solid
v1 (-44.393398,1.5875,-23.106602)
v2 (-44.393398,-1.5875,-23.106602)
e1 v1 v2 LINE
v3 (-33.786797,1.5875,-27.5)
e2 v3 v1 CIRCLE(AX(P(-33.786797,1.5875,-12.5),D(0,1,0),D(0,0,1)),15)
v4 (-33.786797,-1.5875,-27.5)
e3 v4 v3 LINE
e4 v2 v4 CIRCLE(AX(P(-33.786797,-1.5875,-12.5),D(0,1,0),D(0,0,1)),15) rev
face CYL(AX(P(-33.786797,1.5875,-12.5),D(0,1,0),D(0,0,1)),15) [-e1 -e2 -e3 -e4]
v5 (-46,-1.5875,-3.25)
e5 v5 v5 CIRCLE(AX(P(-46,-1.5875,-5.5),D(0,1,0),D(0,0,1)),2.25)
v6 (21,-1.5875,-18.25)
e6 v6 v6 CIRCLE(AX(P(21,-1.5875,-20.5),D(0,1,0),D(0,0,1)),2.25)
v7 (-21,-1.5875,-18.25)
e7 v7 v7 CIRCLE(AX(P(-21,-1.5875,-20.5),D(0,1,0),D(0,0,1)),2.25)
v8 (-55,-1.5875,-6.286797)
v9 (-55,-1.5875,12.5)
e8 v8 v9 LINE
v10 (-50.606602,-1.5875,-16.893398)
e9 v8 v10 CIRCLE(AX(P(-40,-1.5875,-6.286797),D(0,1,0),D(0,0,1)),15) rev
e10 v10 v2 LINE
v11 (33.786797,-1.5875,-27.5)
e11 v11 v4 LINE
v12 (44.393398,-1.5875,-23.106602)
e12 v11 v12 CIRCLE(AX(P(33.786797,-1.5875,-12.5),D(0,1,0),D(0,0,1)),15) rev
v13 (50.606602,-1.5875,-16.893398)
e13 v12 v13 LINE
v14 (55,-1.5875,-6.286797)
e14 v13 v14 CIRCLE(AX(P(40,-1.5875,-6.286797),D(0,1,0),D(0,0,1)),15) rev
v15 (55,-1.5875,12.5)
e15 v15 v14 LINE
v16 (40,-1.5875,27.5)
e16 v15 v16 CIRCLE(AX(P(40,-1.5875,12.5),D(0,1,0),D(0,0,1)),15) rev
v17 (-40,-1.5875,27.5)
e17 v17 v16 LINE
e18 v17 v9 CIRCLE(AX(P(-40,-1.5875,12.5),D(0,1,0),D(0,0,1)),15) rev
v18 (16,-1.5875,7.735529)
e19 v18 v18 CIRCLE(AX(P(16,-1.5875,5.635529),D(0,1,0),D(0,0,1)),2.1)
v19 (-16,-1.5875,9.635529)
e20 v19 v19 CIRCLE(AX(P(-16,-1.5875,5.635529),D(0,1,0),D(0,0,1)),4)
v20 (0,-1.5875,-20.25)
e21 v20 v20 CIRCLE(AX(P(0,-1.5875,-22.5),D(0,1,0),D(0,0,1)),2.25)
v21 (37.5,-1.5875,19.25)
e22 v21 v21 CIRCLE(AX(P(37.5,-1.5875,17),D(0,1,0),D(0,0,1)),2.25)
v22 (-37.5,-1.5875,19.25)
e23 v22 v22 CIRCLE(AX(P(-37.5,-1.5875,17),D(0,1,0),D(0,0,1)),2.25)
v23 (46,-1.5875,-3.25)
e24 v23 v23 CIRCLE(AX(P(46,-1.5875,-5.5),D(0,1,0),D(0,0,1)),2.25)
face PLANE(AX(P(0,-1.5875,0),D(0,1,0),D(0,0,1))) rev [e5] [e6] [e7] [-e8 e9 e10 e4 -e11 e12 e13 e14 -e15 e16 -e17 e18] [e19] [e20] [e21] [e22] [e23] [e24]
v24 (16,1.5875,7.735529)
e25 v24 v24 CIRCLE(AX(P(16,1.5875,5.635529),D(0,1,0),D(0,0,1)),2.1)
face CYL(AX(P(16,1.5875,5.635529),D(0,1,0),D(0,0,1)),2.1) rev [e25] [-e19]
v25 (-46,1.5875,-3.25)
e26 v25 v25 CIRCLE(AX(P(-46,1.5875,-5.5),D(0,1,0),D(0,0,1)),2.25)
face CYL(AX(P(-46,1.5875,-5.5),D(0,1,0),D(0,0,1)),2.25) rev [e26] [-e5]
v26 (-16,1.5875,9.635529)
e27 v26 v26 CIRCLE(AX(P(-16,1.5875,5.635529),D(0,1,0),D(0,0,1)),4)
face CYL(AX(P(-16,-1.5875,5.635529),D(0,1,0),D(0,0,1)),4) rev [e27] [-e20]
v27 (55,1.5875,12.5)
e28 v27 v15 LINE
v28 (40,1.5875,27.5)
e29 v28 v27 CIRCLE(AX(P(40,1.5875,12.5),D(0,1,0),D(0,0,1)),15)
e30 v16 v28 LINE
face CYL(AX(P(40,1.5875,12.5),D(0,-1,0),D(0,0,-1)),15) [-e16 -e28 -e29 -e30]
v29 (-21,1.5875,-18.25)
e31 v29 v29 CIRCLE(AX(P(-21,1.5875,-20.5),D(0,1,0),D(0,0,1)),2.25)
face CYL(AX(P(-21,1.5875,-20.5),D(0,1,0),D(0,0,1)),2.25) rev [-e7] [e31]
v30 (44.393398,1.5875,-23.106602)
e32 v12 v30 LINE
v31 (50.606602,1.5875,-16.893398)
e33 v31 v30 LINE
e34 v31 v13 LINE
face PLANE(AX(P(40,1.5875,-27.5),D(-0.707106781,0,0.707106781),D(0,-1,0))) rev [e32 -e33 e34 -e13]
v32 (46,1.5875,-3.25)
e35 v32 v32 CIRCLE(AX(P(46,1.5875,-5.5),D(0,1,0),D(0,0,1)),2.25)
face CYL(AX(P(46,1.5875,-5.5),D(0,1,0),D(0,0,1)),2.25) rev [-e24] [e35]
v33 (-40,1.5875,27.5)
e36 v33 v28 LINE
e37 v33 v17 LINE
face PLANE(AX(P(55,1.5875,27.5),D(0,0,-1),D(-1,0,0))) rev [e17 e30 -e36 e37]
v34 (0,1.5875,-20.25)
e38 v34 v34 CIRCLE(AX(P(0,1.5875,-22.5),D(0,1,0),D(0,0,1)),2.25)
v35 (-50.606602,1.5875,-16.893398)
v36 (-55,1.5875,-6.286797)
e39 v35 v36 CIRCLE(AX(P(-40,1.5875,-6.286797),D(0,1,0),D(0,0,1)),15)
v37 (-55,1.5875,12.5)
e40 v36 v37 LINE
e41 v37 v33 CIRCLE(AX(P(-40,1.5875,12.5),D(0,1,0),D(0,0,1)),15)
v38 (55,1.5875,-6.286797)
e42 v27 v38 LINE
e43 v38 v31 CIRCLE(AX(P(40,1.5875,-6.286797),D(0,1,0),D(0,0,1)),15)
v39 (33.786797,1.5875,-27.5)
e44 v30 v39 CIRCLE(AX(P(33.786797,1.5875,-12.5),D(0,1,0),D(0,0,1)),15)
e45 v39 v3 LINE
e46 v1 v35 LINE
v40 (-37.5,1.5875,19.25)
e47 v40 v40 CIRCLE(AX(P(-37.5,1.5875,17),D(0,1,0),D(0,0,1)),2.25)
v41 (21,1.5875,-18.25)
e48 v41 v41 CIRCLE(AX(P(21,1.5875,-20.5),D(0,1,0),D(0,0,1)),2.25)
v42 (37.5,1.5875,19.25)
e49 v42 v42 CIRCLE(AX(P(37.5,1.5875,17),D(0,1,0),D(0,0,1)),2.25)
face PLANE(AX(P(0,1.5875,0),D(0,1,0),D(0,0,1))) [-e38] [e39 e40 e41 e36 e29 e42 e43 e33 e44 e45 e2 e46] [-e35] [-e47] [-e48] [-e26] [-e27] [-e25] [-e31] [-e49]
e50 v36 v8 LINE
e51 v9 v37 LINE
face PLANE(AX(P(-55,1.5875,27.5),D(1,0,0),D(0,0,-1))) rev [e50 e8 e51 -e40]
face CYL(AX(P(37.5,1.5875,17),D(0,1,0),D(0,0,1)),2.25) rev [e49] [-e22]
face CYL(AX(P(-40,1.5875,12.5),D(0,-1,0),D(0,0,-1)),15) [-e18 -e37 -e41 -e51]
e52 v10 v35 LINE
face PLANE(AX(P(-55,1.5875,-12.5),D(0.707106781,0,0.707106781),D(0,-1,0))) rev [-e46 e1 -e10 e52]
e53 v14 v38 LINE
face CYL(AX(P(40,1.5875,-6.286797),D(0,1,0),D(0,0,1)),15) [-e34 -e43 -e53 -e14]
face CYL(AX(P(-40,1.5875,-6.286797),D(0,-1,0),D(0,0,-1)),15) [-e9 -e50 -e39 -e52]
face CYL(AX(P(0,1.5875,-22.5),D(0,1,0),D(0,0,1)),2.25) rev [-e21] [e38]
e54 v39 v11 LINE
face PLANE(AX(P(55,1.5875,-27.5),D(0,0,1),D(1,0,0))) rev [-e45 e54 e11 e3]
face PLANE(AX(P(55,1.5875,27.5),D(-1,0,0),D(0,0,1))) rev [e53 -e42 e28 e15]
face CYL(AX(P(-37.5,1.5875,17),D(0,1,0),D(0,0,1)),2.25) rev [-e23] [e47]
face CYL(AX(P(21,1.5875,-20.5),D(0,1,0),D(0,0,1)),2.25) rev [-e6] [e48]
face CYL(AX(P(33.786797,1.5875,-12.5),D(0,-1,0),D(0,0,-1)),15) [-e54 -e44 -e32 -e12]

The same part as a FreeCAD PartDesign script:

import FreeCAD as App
import Part
import Sketcher

V = App.Vector
Q = App.Units.Quantity


def edges_at(feature, points):
    """Names of the edges that pass closest to the given points."""
    edges = feature.Shape.Edges
    near = lambda p: min(range(len(edges)), key=lambda i: edges[i].distToShape(Part.Vertex(*p))[0])
    return sorted({f"Edge{near(p) + 1}" for p in points})


def add_polygon(sketch, points):
    """Adds a closed chain of lines whose ends are joined by coincident constraints."""
    first, n = sketch.GeometryCount, len(points)
    for a, b in zip(points, points[1:] + points[:1]):
        sketch.addGeometry(Part.LineSegment(App.Vector(*a, 0), App.Vector(*b, 0)), False)
    for i in range(n):
        sketch.addConstraint(Sketcher.Constraint("Coincident", first + i, 2, first + (i + 1) % n, 1))

doc = App.newDocument("Part")
body = doc.addObject("PartDesign::Body", "Body")

sketch1 = body.newObject("Sketcher::SketchObject", "Sketch")
sketch1.AttachmentSupport = (doc.getObject("XZ_Plane"), [""])
sketch1.MapMode = "FlatFace"
add_polygon(sketch1, [(-55, -27.5), (-55, 27.5), (55, 27.5), (55, -27.5)])
sketch1.addConstraint(Sketcher.Constraint("Vertical", 0))
sketch1.addConstraint(Sketcher.Constraint("Horizontal", 1))
sketch1.addConstraint(Sketcher.Constraint("Vertical", 2))
sketch1.addConstraint(Sketcher.Constraint("Horizontal", 3))
sketch1.addConstraint(Sketcher.Constraint("Symmetric", 0, 2, 2, 2, -1, 1))
sketch1.addConstraint(Sketcher.Constraint("DistanceX", 1, 1, 1, 2, Q("110 mm")))
sketch1.addConstraint(Sketcher.Constraint("DistanceY", 0, 1, 0, 2, Q("55 mm")))
pad1 = body.newObject("PartDesign::Pad", "Pad")
pad1.Profile = sketch1
pad1.Length = 3.175
pad1.Midplane = True

sketch2 = body.newObject("Sketcher::SketchObject", "Sketch001")
sketch2.AttachmentSupport = (doc.getObject("XZ_Plane"), [""])
sketch2.MapMode = "FlatFace"
sketch2.AttachmentOffset = App.Placement(V(0, 0, -1.5875), App.Rotation())
sketch2.addGeometry(Part.Circle(V(-37.5, 17, 0), V(0, 0, 1), 2.25), False)
sketch2.addGeometry(Part.Circle(V(37.5, 17, 0), V(0, 0, 1), 2.25), False)
sketch2.addConstraint(Sketcher.Constraint("Equal", 0, 1))
sketch2.addConstraint(Sketcher.Constraint("Symmetric", 0, 3, 1, 3, -2))
sketch2.addConstraint(Sketcher.Constraint("Diameter", 0, Q("4.5 mm")))
sketch2.addConstraint(Sketcher.Constraint("DistanceY", -1, 1, 0, 3, Q("17 mm")))
sketch2.addConstraint(Sketcher.Constraint("DistanceX", 0, 3, 1, 3, Q("75 mm")))
doc.recompute()
hole = body.newObject("PartDesign::Hole", "Hole")
hole.Profile = sketch2
hole.ThreadType = "None"
hole.Diameter = 4.5
hole.DepthType = "ThroughAll"
hole.Reversed = True

sketch3 = body.newObject("Sketcher::SketchObject", "Sketch002")
sketch3.AttachmentSupport = (doc.getObject("XZ_Plane"), [""])
sketch3.MapMode = "FlatFace"
sketch3.AttachmentOffset = App.Placement(V(0, 0, -1.5875), App.Rotation())
sketch3.addGeometry(Part.Circle(V(0, -22.5, 0), V(0, 0, 1), 2.25), False)
sketch3.addConstraint(Sketcher.Constraint("PointOnObject", 0, 3, -2))
sketch3.addConstraint(Sketcher.Constraint("Diameter", 0, Q("4.5 mm")))
sketch3.addConstraint(Sketcher.Constraint("DistanceY", 0, 3, -1, 1, Q("22.5 mm")))
doc.recompute()
hole2 = body.newObject("PartDesign::Hole", "Hole001")
hole2.Profile = sketch3
hole2.ThreadType = "None"
hole2.Diameter = 4.5
hole2.DepthType = "Dimension"
hole2.Depth = 10.1
hole2.DrillPoint = "Angled"
hole2.DrillPointAngle = 118
hole2.Reversed = True

sketch4 = body.newObject("Sketcher::SketchObject", "Sketch003")
sketch4.AttachmentSupport = (doc.getObject("XZ_Plane"), [""])
sketch4.MapMode = "FlatFace"
sketch4.AttachmentOffset = App.Placement(V(0, 0, -1.5875), App.Rotation())
sketch4.addGeometry(Part.Circle(V(-46, -5.5, 0), V(0, 0, 1), 2.25), False)
sketch4.addGeometry(Part.Circle(V(46, -5.5, 0), V(0, 0, 1), 2.25), False)
sketch4.addGeometry(Part.Circle(V(21, -20.5, 0), V(0, 0, 1), 2.25), False)
sketch4.addGeometry(Part.Circle(V(-21, -20.5, 0), V(0, 0, 1), 2.25), False)
sketch4.addConstraint(Sketcher.Constraint("Equal", 0, 1))
sketch4.addConstraint(Sketcher.Constraint("Equal", 1, 2))
sketch4.addConstraint(Sketcher.Constraint("Equal", 2, 3))
sketch4.addConstraint(Sketcher.Constraint("Symmetric", 0, 3, 1, 3, -2))
sketch4.addConstraint(Sketcher.Constraint("Symmetric", 2, 3, 3, 3, -2))
sketch4.addConstraint(Sketcher.Constraint("Diameter", 0, Q("4.5 mm")))
sketch4.addConstraint(Sketcher.Constraint("DistanceX", 0, 3, -1, 1, Q("46 mm")))
sketch4.addConstraint(Sketcher.Constraint("DistanceX", -1, 1, 2, 3, Q("21 mm")))
sketch4.addConstraint(Sketcher.Constraint("DistanceY", 2, 3, 1, 3, Q("15 mm")))
sketch4.addConstraint(Sketcher.Constraint("DistanceY", 0, 3, -1, 1, Q("5.5 mm")))
doc.recompute()
hole3 = body.newObject("PartDesign::Hole", "Hole002")
hole3.Profile = sketch4
hole3.ThreadType = "None"
hole3.Diameter = 4.5
hole3.DepthType = "ThroughAll"
hole3.Reversed = True
doc.recompute()

chamfer = body.newObject("PartDesign::Chamfer", "Chamfer")
chamfer.Base = (hole3, edges_at(hole3, [(-55, 0, -27.5), (55, 0, -27.5)]))
chamfer.Size = 15
doc.recompute()

fillet = body.newObject("PartDesign::Fillet", "Fillet")
fillet.Base = (chamfer, edges_at(chamfer, [
    (-55, 0, -12.5),
    (40, 0, -27.5),
    (-40, 0, -27.5),
    (55, 0, -12.5),
    (55, 0, 27.5),
    (-55, 0, 27.5),
]))
fillet.Radius = 15

sketch5 = body.newObject("Sketcher::SketchObject", "Sketch004")
sketch5.AttachmentSupport = (doc.getObject("XZ_Plane"), [""])
sketch5.MapMode = "FlatFace"
sketch5.AttachmentOffset = App.Placement(V(0, 0, -1.5875), App.Rotation())
sketch5.addGeometry(Part.Circle(V(-16, 5.635529, 0), V(0, 0, 1), 4), False)
sketch5.addConstraint(Sketcher.Constraint("Diameter", 0, Q("8 mm")))
sketch5.addConstraint(Sketcher.Constraint("DistanceX", 0, 3, -1, 1, Q("16 mm")))
sketch5.addConstraint(Sketcher.Constraint("DistanceY", -1, 1, 0, 3, Q("5.635529 mm")))
pocket1 = body.newObject("PartDesign::Pocket", "Pocket")
pocket1.Profile = sketch5
pocket1.Type = "ThroughAll"
pocket1.Reversed = True

sketch6 = body.newObject("Sketcher::SketchObject", "Sketch005")
sketch6.AttachmentSupport = (doc.getObject("XZ_Plane"), [""])
sketch6.MapMode = "FlatFace"
sketch6.AttachmentOffset = App.Placement(V(0, 0, -1.5875), App.Rotation())
sketch6.addGeometry(Part.Circle(V(16, 5.635529, 0), V(0, 0, 1), 2.1), False)
sketch6.addConstraint(Sketcher.Constraint("Diameter", 0, Q("4.2 mm")))
sketch6.addConstraint(Sketcher.Constraint("DistanceX", -1, 1, 0, 3, Q("16 mm")))
sketch6.addConstraint(Sketcher.Constraint("DistanceY", -1, 1, 0, 3, Q("5.635529 mm")))
doc.recompute()
hole4 = body.newObject("PartDesign::Hole", "Hole003")
hole4.Profile = sketch6
hole4.ThreadType = "None"
hole4.Diameter = 4.2
hole4.DepthType = "ThroughAll"
hole4.Reversed = True

doc.recompute()
